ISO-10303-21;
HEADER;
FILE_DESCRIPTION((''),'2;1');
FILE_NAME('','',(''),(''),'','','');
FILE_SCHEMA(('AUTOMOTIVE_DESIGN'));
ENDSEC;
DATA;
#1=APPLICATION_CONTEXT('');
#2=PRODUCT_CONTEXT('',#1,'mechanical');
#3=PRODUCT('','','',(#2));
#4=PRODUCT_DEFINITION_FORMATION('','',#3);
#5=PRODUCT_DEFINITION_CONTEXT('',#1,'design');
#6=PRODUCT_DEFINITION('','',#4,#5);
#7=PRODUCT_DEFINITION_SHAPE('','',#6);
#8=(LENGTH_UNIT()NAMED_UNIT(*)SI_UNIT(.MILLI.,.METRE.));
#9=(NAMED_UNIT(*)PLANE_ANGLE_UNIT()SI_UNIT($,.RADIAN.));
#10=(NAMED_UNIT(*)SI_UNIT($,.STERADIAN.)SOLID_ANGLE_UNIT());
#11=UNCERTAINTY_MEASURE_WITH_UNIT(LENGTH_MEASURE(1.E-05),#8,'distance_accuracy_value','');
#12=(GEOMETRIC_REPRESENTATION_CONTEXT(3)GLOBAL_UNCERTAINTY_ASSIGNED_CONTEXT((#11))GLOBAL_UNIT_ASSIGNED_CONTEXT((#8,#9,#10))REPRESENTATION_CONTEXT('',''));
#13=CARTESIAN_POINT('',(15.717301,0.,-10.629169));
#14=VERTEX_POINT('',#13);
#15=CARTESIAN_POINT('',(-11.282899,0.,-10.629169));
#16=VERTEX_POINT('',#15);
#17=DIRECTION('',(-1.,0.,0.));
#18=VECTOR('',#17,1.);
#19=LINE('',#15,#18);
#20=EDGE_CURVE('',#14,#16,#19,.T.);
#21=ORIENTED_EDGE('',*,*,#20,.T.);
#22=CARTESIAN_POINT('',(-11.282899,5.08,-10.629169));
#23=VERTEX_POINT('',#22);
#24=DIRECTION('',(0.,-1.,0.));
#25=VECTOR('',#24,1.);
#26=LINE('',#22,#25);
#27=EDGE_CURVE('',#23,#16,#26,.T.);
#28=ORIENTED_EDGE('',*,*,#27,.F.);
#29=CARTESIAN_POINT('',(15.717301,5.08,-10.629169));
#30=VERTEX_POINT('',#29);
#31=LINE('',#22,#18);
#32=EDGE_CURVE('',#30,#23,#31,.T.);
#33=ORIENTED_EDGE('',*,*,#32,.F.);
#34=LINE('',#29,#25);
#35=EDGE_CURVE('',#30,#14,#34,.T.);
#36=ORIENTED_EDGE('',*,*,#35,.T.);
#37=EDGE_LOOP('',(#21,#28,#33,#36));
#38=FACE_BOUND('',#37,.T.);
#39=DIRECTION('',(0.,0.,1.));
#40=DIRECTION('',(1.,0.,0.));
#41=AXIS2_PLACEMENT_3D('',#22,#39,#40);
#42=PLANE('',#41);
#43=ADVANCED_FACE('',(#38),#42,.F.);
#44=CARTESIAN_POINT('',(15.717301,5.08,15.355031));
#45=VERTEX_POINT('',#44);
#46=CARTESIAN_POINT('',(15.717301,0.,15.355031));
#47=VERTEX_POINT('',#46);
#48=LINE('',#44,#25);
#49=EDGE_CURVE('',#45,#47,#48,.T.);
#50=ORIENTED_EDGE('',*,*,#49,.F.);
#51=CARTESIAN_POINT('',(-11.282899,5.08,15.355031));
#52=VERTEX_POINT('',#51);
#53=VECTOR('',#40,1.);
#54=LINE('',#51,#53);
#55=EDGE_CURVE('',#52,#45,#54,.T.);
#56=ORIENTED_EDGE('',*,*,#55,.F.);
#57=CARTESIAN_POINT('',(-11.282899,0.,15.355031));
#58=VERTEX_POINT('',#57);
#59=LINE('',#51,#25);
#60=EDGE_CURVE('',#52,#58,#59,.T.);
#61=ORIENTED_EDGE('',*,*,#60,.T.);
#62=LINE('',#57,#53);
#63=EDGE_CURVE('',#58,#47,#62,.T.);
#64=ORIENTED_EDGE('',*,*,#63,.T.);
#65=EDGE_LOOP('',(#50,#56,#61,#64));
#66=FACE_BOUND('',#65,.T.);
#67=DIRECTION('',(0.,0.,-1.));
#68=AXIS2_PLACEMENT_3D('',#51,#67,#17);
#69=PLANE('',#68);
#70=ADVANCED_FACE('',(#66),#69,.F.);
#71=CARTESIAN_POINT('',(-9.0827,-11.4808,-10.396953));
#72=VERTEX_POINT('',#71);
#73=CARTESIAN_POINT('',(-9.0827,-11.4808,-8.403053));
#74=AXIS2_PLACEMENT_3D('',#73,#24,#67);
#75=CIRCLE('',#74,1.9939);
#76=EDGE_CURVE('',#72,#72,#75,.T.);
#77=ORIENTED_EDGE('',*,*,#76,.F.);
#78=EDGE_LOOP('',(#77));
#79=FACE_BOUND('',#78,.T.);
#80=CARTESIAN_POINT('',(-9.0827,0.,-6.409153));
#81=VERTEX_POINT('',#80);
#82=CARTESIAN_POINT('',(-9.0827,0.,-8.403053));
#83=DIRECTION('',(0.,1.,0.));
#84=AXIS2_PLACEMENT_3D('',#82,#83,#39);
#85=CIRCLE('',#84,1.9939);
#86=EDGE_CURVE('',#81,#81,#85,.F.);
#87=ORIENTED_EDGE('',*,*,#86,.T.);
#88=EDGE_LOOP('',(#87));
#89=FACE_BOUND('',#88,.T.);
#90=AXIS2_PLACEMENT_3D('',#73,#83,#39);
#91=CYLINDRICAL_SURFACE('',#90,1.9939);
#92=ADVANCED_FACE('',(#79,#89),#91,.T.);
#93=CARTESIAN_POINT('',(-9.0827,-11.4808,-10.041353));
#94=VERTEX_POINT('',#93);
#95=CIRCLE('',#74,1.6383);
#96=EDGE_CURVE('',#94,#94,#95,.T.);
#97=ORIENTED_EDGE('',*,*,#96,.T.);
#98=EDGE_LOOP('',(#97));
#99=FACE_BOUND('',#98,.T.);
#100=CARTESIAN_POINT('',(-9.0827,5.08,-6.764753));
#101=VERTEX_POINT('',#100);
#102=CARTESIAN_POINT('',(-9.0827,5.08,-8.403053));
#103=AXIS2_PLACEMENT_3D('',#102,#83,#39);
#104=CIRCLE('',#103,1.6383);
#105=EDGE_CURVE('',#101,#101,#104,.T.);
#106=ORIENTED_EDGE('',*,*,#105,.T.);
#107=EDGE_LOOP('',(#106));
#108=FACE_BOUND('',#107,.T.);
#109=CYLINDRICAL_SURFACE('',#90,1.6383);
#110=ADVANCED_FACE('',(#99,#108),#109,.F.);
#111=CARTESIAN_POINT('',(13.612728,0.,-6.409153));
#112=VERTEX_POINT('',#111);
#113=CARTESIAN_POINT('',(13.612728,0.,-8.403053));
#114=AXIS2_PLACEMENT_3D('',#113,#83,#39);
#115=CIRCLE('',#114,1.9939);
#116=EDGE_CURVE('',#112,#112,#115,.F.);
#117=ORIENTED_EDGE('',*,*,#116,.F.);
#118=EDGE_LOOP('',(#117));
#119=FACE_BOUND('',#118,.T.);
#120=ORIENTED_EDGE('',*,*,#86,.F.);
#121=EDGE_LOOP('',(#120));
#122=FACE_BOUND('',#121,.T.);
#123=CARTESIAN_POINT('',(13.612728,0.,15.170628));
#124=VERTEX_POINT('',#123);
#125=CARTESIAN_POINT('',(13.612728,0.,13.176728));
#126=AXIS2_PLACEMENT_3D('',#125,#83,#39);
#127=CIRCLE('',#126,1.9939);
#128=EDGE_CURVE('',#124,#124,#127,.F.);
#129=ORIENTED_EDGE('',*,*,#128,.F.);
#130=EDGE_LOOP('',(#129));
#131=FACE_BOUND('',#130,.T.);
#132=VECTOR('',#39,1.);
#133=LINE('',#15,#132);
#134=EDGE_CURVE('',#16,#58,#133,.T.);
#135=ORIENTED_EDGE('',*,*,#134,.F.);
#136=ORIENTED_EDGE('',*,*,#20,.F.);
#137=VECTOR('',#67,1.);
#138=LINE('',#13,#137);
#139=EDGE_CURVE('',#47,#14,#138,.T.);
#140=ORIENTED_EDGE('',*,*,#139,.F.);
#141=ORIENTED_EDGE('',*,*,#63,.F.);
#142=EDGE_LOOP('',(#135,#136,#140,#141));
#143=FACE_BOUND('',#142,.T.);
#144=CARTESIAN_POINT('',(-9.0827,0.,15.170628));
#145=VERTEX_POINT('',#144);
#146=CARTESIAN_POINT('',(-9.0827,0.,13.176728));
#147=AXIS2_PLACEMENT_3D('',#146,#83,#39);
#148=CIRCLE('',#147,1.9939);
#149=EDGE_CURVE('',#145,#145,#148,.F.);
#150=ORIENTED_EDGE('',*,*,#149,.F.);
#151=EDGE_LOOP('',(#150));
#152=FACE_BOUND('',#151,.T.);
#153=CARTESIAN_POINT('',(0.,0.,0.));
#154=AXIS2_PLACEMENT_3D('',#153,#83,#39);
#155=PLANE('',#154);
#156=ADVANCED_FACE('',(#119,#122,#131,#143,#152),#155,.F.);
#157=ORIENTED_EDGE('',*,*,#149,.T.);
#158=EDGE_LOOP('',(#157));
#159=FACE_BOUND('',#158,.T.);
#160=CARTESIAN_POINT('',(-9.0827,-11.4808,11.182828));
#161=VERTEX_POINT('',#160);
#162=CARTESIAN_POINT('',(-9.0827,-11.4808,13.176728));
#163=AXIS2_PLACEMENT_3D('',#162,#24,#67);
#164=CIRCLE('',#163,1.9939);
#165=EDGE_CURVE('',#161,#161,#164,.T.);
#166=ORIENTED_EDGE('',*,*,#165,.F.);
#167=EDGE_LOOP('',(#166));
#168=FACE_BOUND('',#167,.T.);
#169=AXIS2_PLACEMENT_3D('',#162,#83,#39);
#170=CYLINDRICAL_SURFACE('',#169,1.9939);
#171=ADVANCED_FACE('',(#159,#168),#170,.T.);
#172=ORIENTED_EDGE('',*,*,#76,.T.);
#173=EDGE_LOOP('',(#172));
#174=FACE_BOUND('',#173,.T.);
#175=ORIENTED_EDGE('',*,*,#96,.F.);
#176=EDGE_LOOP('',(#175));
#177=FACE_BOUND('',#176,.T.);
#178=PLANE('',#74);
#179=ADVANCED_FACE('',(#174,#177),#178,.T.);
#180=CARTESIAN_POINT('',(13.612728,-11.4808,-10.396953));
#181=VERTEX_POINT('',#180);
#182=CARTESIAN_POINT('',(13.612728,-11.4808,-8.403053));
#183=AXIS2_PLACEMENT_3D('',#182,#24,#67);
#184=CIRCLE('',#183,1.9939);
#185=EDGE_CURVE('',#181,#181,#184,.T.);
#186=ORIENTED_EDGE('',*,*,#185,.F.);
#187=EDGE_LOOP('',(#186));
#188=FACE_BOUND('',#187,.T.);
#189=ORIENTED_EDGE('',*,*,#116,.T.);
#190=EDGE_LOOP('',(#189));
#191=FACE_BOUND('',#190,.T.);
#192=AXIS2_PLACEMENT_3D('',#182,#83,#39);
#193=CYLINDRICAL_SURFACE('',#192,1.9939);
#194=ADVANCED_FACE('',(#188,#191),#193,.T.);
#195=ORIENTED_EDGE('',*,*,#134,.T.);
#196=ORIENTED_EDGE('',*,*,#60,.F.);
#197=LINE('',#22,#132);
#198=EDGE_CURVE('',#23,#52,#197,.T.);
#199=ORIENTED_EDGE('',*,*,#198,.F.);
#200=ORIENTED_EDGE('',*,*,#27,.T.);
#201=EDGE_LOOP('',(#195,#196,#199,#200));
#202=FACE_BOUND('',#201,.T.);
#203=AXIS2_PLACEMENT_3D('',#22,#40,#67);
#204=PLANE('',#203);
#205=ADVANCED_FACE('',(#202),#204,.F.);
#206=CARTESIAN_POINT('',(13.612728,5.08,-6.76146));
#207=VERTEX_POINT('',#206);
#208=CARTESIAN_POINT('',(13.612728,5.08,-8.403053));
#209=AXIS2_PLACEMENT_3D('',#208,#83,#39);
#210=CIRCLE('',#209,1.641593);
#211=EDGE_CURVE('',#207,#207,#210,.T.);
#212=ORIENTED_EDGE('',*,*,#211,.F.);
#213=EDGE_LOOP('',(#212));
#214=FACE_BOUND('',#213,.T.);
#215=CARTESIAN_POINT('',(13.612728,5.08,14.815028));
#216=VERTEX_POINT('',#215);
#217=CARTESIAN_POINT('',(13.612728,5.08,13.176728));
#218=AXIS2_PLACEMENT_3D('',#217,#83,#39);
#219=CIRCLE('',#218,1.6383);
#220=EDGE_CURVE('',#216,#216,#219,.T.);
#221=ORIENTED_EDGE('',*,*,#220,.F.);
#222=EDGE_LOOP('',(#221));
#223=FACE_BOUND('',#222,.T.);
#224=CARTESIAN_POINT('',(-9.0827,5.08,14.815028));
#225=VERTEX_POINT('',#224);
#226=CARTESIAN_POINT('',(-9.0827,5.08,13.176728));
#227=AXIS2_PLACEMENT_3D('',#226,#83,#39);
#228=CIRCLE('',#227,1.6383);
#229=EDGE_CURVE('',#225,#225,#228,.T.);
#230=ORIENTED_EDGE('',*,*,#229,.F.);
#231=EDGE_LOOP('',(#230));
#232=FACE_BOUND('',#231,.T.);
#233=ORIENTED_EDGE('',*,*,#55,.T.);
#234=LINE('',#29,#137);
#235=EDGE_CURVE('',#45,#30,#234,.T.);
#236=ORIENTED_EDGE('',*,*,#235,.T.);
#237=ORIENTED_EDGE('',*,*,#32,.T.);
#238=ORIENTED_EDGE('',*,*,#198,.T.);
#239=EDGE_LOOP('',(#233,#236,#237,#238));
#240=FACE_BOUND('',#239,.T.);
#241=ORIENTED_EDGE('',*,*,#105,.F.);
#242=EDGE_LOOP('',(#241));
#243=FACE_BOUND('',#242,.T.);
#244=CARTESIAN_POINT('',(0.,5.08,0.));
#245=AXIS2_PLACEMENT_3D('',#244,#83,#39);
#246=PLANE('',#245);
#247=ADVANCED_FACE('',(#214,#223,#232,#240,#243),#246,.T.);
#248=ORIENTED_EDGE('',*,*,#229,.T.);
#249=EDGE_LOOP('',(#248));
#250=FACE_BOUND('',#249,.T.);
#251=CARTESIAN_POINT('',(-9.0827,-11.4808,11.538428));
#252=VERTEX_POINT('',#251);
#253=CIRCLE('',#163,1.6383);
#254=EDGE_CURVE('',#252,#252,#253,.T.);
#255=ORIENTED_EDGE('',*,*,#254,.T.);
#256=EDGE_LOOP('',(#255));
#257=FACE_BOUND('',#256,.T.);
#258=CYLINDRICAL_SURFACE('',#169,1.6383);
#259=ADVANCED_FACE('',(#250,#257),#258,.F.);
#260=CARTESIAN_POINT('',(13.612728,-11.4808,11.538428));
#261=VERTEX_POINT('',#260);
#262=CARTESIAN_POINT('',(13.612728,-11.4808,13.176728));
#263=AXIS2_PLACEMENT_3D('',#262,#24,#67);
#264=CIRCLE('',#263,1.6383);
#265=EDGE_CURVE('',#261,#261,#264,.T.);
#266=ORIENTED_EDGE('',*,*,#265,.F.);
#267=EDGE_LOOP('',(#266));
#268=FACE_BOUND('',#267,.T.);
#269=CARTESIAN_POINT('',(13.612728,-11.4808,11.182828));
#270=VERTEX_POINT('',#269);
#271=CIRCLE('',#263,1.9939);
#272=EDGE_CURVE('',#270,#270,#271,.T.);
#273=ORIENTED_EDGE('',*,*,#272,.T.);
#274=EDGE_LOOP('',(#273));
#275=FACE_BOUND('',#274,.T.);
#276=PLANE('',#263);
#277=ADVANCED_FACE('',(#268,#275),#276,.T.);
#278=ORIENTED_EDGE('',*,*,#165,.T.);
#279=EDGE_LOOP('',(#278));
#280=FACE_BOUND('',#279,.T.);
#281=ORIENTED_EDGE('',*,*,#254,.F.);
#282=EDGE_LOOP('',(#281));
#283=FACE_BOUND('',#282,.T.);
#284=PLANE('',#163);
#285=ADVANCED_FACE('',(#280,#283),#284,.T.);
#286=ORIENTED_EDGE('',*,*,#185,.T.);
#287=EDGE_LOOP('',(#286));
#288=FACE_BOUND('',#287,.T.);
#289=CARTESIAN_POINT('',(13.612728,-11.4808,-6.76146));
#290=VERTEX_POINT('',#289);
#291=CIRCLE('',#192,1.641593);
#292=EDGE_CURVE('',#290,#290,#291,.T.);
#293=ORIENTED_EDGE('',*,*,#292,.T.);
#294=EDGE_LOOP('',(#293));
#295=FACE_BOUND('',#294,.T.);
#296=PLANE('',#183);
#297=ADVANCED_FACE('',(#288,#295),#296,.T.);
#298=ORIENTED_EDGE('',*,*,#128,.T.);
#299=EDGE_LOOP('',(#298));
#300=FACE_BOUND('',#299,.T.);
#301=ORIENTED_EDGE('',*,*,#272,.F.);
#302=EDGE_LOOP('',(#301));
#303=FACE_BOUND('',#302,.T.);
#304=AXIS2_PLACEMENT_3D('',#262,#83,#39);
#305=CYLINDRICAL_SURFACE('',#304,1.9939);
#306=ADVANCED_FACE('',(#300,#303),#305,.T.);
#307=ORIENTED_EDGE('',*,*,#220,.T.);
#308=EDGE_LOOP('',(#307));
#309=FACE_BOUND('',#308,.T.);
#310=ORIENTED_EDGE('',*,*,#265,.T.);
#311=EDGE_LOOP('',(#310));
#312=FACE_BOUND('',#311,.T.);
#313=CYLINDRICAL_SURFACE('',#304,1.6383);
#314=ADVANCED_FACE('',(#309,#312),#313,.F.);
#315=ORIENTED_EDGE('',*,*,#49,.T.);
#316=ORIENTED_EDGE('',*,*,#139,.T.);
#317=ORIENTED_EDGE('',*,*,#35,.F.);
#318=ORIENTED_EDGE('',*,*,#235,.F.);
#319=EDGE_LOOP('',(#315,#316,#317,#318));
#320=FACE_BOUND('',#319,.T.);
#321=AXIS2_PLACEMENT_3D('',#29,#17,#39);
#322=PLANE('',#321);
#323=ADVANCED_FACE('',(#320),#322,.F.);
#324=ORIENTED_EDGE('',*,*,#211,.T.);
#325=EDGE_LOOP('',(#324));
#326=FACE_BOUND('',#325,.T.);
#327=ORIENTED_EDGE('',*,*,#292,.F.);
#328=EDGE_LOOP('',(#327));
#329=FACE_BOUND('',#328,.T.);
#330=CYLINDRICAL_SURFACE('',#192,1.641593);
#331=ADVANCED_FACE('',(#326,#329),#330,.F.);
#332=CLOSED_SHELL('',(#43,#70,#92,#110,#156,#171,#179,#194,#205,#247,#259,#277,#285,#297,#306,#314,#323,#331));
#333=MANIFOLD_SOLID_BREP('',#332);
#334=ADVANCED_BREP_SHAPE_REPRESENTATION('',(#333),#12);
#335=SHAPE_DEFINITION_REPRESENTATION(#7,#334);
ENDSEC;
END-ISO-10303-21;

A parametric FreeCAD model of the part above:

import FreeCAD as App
import Part
import Sketcher
from FreeCAD import Vector
Q = App.Units.Quantity

doc = App.newDocument("Part")
body = doc.addObject("PartDesign::Body", "Body")

# Sketch on XZ plane
sketch1 = body.newObject("Sketcher::SketchObject", "Sketch")
sketch1.AttachmentSupport = (doc.getObject("XZ_Plane"), [""])
sketch1.MapMode = "FlatFace"
sketch1.addGeometry([
    Part.LineSegment(Vector(-11, -11, 0), Vector(-11, 15, 0)),
    Part.LineSegment(Vector(-11, 15, 0), Vector(16, 15, 0)),
    Part.LineSegment(Vector(16, 15, 0), Vector(16, -11, 0)),
    Part.LineSegment(Vector(16, -11, 0), Vector(-11, -11, 0)),
], False)
sketch1.addConstraint([
    Sketcher.Constraint("Coincident", 0, 2, 1, 1),
    Sketcher.Constraint("Coincident", 1, 2, 2, 1),
    Sketcher.Constraint("Coincident", 2, 2, 3, 1),
    Sketcher.Constraint("Coincident", 3, 2, 0, 1),
    Sketcher.Constraint("Vertical", 0),
    Sketcher.Constraint("Horizontal", 1),
    Sketcher.Constraint("Vertical", 2),
    Sketcher.Constraint("Horizontal", 3),
    Sketcher.Constraint("DistanceX", 1, 1, 1, 2, Q("1.063 in")),
    Sketcher.Constraint("DistanceY", 0, 1, 0, 2, Q("1.023 in")),
    Sketcher.Constraint("DistanceX", 0, 2, -1, 1, Q("11.282899 mm")),
    Sketcher.Constraint("DistanceY", -1, 1, 0, 2, Q("15.355031 mm")),
])
pad1 = body.newObject("PartDesign::Pad", "Pad")
pad1.Profile = sketch1
pad1.Length = Q("0.2 in")
pad1.Reversed = True

# Sketch on XZ plane
sketch2 = body.newObject("Sketcher::SketchObject", "Sketch001")
sketch2.AttachmentSupport = (doc.getObject("XZ_Plane"), [""])
sketch2.MapMode = "FlatFace"
sketch2.addGeometry([
    Part.Circle(Vector(-9.1, 13.2, 0), Vector(0, 0, 1), 2),  # 0
    Part.Circle(Vector(-9.1, 13.2, 0), Vector(0, 0, 1), 1.6),  # 1
    Part.Circle(Vector(13.6, 13.2, 0), Vector(0, 0, 1), 2),  # 2
    Part.Circle(Vector(13.6, 13.2, 0), Vector(0, 0, 1), 1.6),  # 3
    Part.Circle(Vector(-9.1, -8.4, 0), Vector(0, 0, 1), 2),  # 4
    Part.Circle(Vector(-9.1, -8.4, 0), Vector(0, 0, 1), 1.6),  # 5
    Part.Circle(Vector(13.6, -8.4, 0), Vector(0, 0, 1), 2),  # 6
    Part.Circle(Vector(13.6, -8.4, 0), Vector(0, 0, 1), 1.6),  # 7
], False)
sketch2.addConstraint([
    Sketcher.Constraint("Coincident", 1, 3, 0, 3),
    Sketcher.Constraint("Coincident", 3, 3, 2, 3),
    Sketcher.Constraint("Coincident", 5, 3, 4, 3),
    Sketcher.Constraint("Coincident", 7, 3, 6, 3),
    Sketcher.Constraint("Equal", 0, 2),
    Sketcher.Constraint("Equal", 1, 3),
    Sketcher.Constraint("Equal", 2, 4),
    Sketcher.Constraint("Equal", 3, 5),
    Sketcher.Constraint("Equal", 4, 6),
    Sketcher.Constraint("Equal", 5, 7),
    Sketcher.Constraint("Horizontal", 1, 3, 2, 3),
    Sketcher.Constraint("Horizontal", 5, 3, 6, 3),
    Sketcher.Constraint("Vertical", 1, 3, 4, 3),
    Sketcher.Constraint("Vertical", 3, 3, 6, 3),
    Sketcher.Constraint("Diameter", 0, Q("0.157 in")),
    Sketcher.Constraint("Diameter", 1, Q("0.129 in")),
    Sketcher.Constraint("DistanceX", 0, 3, -1, 1, Q("9.0827 mm")),
    Sketcher.Constraint("DistanceY", -1, 1, 0, 3, Q("13.176728 mm")),
    Sketcher.Constraint("DistanceY", 4, 3, 0, 3, Q("21.579781 mm")),
    Sketcher.Constraint("DistanceX", -1, 1, 2, 3, Q("13.612728 mm")),
])
pad2 = body.newObject("PartDesign::Pad", "Pad001")
pad2.Profile = sketch2
pad2.Length = Q("0.452 in")

# Sketch on XZ plane
sketch3 = body.newObject("Sketcher::SketchObject", "Sketch002")
sketch3.AttachmentSupport = (doc.getObject("XZ_Plane"), [""])
sketch3.MapMode = "FlatFace"
sketch3.AttachmentOffset = App.Placement(Vector(0, 0, -0.2 * 25.4), App.Rotation())
sketch3.addGeometry([
    Part.Circle(Vector(13.6, -8.4, 0), Vector(0, 0, 1), 1.6),
    Part.Circle(Vector(-9.1, -8.4, 0), Vector(0, 0, 1), 1.6),
    Part.Circle(Vector(13.6, 13.2, 0), Vector(0, 0, 1), 1.6),
    Part.Circle(Vector(-9.1, 13.2, 0), Vector(0, 0, 1), 1.6),
], False)
sketch3.addConstraint([
    Sketcher.Constraint("Equal", 1, 2),
    Sketcher.Constraint("Equal", 2, 3),
    Sketcher.Constraint("Horizontal", 0, 3, 1, 3),
    Sketcher.Constraint("Horizontal", 2, 3, 3, 3),
    Sketcher.Constraint("Vertical", 0, 3, 2, 3),
    Sketcher.Constraint("Vertical", 1, 3, 3, 3),
    Sketcher.Constraint("Diameter", 1, Q("0.129 in")),
    Sketcher.Constraint("Diameter", 0, Q("3.283187 mm")),
    Sketcher.Constraint("DistanceX", 1, 3, -1, 1, Q("9.0827 mm")),
    Sketcher.Constraint("DistanceY", -1, 1, 2, 3, Q("13.176728 mm")),
    Sketcher.Constraint("DistanceY", 0, 3, 2, 3, Q("21.579781 mm")),
    Sketcher.Constraint("DistanceX", -1, 1, 0, 3, Q("13.612728 mm")),
])
pocket1 = body.newObject("PartDesign::Pocket", "Pocket")
pocket1.Profile = sketch3
pocket1.Type = "ThroughAll"
pocket1.Midplane = True

doc.recompute()
